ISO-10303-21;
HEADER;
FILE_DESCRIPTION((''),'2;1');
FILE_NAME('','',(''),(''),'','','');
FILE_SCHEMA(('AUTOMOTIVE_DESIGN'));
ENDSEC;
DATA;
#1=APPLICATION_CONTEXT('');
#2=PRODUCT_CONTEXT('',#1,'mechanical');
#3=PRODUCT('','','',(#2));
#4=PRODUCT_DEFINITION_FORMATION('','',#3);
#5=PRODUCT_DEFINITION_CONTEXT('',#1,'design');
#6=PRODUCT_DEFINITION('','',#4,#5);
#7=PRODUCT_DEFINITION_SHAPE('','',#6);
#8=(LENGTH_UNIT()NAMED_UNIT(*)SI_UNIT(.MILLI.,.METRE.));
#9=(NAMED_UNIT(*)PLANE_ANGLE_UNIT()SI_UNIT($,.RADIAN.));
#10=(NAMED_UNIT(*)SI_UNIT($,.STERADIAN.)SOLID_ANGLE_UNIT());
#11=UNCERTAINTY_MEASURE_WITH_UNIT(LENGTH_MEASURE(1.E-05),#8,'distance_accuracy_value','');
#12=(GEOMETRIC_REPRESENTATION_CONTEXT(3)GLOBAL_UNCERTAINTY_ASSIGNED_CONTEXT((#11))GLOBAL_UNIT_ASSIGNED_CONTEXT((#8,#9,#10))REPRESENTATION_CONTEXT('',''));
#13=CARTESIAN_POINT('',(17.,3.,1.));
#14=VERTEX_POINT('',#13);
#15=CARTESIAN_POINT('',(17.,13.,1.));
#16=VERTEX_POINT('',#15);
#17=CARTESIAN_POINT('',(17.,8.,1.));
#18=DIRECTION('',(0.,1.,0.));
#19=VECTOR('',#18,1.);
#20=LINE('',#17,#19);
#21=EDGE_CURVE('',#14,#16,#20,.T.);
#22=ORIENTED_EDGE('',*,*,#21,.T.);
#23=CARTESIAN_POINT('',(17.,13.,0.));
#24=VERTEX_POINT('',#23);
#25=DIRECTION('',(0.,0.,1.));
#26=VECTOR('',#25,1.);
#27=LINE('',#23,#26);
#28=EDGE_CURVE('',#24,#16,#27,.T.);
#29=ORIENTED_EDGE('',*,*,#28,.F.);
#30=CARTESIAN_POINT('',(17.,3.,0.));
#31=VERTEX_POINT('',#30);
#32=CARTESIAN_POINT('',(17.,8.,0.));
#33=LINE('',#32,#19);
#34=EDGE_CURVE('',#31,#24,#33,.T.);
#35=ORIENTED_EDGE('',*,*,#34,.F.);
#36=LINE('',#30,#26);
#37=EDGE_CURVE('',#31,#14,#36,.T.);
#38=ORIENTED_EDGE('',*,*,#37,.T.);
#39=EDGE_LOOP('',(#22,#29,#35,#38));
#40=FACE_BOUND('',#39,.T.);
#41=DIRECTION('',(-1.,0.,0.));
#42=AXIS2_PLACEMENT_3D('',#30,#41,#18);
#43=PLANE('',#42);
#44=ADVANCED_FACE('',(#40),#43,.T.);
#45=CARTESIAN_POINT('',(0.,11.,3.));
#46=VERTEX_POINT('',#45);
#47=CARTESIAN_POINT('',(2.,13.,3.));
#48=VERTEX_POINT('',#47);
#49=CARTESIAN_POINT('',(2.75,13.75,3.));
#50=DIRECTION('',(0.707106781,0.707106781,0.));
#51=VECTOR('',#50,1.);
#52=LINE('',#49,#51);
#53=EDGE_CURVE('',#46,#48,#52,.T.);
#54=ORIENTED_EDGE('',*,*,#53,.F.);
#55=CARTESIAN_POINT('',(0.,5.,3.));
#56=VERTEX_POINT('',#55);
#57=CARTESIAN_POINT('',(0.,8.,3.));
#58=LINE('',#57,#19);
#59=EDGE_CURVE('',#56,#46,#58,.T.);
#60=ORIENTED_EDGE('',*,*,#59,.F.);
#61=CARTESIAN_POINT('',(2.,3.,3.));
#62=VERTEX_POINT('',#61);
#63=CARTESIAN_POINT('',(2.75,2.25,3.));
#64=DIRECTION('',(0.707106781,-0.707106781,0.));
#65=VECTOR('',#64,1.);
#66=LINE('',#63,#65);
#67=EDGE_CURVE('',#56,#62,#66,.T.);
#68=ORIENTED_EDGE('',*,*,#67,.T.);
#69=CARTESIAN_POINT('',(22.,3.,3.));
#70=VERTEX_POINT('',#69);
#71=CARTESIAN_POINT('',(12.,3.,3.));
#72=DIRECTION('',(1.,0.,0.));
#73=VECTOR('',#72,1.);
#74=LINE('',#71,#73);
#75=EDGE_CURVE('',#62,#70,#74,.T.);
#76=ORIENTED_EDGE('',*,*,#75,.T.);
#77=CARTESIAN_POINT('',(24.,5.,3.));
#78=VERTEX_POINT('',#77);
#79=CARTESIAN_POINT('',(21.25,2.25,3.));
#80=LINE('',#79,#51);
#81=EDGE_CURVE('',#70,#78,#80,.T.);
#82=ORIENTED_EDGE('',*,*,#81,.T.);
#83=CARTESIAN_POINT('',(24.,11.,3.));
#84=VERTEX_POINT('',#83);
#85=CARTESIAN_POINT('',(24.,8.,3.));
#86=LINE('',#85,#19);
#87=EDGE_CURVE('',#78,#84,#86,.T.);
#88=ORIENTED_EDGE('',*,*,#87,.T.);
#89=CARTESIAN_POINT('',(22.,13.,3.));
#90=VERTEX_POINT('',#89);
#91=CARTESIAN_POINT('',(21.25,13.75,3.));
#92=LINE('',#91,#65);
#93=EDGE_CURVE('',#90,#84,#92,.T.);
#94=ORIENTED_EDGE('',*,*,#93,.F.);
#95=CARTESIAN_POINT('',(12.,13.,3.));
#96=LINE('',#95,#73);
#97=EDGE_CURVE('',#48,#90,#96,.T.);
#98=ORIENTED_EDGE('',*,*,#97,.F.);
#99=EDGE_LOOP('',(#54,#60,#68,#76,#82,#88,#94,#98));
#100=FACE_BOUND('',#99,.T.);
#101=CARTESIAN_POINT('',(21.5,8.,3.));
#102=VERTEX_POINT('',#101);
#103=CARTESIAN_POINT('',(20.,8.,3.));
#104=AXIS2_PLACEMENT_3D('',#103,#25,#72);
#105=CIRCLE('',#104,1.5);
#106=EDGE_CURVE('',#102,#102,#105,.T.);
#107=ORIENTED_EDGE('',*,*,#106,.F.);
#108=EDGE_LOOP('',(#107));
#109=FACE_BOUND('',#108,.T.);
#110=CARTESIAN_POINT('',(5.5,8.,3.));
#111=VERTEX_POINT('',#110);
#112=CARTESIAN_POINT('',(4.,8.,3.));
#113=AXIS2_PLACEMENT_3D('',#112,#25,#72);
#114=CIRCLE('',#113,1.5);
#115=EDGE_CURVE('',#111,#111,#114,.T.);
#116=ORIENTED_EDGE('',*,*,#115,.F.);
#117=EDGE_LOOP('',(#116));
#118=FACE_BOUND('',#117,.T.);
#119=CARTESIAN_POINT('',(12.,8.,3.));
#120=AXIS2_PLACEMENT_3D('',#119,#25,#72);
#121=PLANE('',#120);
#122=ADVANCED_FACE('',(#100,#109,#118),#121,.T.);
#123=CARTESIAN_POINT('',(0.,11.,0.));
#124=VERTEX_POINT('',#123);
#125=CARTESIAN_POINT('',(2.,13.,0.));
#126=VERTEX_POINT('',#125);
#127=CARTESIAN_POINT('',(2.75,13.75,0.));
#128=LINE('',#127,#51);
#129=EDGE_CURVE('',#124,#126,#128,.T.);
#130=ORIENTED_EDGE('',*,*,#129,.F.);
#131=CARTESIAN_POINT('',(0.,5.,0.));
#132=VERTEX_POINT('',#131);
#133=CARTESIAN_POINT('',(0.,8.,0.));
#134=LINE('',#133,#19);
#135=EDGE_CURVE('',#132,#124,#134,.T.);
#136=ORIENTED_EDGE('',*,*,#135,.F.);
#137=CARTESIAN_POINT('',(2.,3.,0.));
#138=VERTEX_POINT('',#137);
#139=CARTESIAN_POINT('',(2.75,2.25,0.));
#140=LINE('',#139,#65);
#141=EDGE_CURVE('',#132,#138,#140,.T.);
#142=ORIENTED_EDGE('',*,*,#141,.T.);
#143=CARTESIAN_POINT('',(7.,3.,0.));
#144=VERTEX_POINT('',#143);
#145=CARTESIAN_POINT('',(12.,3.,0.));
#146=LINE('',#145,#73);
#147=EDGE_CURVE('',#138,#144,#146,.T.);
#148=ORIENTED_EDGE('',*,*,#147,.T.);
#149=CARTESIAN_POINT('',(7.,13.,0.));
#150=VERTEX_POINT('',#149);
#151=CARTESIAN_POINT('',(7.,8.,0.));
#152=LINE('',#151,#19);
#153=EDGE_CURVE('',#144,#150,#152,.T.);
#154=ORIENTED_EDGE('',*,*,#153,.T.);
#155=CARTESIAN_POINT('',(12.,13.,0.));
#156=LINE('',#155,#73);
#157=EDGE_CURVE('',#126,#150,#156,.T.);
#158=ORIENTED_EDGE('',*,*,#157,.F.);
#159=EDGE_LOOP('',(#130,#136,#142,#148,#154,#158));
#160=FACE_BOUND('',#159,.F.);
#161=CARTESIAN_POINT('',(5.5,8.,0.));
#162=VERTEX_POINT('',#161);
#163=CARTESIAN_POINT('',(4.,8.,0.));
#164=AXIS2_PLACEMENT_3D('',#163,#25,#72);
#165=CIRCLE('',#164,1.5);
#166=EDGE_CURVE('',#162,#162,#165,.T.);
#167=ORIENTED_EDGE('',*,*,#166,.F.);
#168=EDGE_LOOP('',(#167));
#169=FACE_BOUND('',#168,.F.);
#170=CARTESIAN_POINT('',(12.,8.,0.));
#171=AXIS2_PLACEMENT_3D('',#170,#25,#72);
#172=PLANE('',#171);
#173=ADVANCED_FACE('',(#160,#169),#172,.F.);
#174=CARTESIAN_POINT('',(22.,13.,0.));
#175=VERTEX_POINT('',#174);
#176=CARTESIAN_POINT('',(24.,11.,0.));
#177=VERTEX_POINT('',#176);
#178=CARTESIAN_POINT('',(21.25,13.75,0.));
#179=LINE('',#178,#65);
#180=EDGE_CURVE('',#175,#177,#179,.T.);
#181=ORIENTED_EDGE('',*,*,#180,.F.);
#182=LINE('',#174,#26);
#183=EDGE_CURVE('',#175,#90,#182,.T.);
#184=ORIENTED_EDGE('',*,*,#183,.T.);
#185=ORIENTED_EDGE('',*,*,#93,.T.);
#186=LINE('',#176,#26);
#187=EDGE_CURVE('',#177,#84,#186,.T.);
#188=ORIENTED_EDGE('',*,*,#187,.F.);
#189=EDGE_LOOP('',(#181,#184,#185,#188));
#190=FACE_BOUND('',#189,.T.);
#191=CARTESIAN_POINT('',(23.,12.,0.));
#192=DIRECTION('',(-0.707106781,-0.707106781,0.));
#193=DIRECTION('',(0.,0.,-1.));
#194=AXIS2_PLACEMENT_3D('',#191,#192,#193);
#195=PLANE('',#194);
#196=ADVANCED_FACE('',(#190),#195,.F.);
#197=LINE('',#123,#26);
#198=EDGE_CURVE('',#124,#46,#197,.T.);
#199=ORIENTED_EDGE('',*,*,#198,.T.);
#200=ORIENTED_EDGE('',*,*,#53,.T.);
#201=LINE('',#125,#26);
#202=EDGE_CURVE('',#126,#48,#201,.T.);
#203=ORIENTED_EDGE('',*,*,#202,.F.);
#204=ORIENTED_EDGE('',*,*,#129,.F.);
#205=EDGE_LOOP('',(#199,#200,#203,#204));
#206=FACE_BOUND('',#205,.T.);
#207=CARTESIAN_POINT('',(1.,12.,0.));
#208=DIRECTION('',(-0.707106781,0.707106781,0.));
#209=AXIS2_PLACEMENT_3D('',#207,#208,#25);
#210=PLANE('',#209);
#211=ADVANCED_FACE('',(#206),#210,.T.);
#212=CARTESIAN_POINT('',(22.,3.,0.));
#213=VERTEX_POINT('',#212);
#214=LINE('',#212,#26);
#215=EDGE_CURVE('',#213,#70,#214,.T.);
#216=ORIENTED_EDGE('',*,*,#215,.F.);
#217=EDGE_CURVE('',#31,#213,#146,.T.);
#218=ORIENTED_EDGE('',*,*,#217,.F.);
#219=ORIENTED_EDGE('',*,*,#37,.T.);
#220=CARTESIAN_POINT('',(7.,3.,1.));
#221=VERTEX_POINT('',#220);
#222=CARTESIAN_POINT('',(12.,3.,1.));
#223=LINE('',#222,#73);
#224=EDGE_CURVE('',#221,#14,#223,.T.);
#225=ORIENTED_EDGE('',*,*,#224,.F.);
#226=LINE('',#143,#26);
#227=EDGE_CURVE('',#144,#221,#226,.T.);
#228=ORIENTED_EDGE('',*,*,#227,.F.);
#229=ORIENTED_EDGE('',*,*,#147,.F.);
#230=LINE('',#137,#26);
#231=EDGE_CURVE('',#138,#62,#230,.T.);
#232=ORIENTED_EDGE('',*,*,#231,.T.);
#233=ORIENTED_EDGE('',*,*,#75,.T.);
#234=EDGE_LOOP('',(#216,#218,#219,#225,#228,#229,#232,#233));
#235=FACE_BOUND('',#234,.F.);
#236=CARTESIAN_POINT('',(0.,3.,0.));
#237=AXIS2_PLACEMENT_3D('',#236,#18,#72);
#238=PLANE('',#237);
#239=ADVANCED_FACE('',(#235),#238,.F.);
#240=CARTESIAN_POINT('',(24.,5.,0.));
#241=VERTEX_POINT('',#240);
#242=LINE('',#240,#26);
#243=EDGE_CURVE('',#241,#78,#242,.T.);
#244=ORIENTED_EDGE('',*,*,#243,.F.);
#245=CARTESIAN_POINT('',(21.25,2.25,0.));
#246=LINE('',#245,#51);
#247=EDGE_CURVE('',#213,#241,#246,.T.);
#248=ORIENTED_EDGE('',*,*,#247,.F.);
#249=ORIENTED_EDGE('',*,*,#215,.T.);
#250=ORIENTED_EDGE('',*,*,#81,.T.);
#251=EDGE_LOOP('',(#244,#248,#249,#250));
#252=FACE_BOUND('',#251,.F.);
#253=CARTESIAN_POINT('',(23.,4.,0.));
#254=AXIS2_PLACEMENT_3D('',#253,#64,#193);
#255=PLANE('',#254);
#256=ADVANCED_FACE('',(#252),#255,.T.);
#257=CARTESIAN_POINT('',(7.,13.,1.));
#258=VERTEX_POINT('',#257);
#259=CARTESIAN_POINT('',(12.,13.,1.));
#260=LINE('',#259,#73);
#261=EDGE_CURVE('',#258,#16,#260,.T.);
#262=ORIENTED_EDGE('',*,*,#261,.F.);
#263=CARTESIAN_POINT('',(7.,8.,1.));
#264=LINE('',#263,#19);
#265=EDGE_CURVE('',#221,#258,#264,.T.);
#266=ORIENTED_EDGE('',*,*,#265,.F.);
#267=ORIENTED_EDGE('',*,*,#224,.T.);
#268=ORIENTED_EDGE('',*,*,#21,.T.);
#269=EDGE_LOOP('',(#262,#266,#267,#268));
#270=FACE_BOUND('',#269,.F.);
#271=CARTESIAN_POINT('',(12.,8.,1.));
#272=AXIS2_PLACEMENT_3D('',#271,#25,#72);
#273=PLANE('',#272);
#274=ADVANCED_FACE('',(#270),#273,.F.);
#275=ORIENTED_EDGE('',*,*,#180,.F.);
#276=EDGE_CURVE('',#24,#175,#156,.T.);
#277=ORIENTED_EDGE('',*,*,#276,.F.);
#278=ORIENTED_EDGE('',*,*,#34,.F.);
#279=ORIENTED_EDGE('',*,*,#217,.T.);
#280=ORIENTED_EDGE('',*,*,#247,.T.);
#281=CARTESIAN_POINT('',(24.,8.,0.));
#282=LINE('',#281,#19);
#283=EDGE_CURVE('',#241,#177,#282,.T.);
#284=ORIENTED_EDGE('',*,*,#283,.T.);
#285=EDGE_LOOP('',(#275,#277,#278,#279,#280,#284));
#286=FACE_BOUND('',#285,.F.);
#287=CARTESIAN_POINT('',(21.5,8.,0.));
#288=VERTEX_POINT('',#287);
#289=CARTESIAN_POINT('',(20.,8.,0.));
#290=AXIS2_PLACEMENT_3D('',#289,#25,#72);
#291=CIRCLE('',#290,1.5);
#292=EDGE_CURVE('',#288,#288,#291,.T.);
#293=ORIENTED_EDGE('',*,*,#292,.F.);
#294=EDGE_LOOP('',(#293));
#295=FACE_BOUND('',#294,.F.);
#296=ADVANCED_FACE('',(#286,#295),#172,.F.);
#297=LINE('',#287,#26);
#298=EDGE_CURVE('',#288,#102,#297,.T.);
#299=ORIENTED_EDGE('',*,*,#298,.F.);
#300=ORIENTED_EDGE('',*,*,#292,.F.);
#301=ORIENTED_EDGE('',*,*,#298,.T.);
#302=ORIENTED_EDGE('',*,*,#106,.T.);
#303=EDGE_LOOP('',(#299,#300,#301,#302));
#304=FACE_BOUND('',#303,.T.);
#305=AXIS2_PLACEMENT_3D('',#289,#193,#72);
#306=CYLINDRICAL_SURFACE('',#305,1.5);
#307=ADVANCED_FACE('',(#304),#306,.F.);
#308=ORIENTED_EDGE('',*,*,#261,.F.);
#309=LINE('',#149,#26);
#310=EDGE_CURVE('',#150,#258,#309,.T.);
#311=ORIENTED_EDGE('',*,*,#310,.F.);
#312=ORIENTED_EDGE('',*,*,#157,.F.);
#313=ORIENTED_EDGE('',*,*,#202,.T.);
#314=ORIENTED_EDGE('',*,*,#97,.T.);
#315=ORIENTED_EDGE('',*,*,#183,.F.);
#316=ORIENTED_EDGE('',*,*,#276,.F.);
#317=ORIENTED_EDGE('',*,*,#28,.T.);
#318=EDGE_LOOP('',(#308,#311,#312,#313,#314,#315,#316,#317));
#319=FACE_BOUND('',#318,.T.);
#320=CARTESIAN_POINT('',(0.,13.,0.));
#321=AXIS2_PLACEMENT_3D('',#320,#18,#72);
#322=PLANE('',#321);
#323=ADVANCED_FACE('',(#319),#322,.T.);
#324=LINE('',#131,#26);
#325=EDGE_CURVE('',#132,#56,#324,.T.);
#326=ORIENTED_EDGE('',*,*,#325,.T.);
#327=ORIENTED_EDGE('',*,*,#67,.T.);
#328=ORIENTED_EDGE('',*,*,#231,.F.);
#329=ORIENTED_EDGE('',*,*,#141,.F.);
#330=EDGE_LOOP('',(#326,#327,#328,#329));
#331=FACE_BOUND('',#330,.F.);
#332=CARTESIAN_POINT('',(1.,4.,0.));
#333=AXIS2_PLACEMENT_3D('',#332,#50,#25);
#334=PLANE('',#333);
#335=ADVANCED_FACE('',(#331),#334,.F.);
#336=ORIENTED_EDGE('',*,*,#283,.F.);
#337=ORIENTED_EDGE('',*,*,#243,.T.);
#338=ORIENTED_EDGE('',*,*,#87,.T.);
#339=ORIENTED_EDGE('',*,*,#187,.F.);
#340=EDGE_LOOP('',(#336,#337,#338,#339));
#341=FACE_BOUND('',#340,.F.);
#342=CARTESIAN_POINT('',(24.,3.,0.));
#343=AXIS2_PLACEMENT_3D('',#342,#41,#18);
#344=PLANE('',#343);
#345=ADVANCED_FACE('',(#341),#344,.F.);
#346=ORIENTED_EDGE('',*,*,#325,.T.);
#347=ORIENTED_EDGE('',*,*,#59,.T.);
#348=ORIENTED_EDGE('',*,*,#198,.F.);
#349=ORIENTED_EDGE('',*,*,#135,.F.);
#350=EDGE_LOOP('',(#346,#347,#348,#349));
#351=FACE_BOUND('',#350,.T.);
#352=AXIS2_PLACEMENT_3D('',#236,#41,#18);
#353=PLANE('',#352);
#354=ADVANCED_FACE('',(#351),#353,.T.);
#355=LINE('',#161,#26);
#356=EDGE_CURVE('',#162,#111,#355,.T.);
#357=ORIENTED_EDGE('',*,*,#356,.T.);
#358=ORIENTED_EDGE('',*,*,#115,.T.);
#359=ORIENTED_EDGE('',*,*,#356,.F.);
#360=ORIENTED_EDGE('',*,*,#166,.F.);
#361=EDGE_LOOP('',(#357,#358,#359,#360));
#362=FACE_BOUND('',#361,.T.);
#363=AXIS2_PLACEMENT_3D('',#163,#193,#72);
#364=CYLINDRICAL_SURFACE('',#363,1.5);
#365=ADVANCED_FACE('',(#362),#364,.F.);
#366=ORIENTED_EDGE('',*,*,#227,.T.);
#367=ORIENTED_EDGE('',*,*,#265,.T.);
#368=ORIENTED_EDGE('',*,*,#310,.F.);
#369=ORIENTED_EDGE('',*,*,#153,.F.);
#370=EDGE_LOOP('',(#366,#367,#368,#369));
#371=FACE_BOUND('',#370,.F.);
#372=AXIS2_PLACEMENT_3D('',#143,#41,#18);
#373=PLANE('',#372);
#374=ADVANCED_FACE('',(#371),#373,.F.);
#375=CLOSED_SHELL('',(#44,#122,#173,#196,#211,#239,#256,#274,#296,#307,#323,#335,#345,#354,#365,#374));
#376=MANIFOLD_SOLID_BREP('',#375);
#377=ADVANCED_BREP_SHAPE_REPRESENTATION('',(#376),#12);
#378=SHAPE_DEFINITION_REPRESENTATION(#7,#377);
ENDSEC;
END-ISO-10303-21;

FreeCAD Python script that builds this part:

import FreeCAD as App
import Part
import Sketcher
from FreeCAD import Vector


def edges_at(feature, points):
    """Names of the edges that pass closest to the given points."""
    edges = feature.Shape.Edges
    near = lambda p: min(range(len(edges)), key=lambda i: edges[i].distToShape(Part.Vertex(*p))[0])
    return sorted({f"Edge{near(p) + 1}" for p in points})


def add_polygon(sketch, points):
    """Adds a closed chain of lines whose ends are joined by coincident constraints."""
    first, n = sketch.GeometryCount, len(points)
    for a, b in zip(points, points[1:] + points[:1]):
        sketch.addGeometry(Part.LineSegment(App.Vector(*a, 0), App.Vector(*b, 0)), False)
    for i in range(n):
        sketch.addConstraint(Sketcher.Constraint("Coincident", first + i, 2, first + (i + 1) % n, 1))

doc = App.newDocument("Part")
params = doc.addObject("Spreadsheet::Sheet", "Params")
for row, (alias, value) in enumerate([
    ("sketch1_diameter", "3 mm"),
    ("pad1_length", "3 mm"),
    ("sketch2_diameter", "3 mm"),
    ("pad2_length", "3 mm"),
    ("sketch3_width", "10 mm"),
    ("pad3_length", "1 mm"),
    ("sketch4_width", "24 mm"),
    ("sketch4_height", "10 mm"),
    ("pad4_length", "3 mm"),
    ("chamfer_size", "2 mm"),
], start=1):
    params.set(f"A{row}", alias)
    params.set(f"B{row}", "=" + value)
    params.setAlias(f"B{row}", alias)

body = doc.addObject("PartDesign::Body", "Body")

# Sketch on XY plane
sketch1 = body.newObject("Sketcher::SketchObject", "Sketch")
sketch1.AttachmentSupport = (doc.getObject("XY_Plane"), [""])
sketch1.MapMode = "FlatFace"
sketch1.addGeometry(Part.Circle(Vector(4, 5, 0), Vector(0, 0, 1), 1.5), False)
sketch1.addConstraint([
    Sketcher.Constraint("Diameter", 0, 3.0),
    Sketcher.Constraint("DistanceX", -1, 1, 0, 3, 4.0),
    Sketcher.Constraint("DistanceY", -1, 1, 0, 3, 5.0),
])
sketch1.setExpression("Constraints[0]", "Params.sketch1_diameter")
pad1 = body.newObject("PartDesign::Pad", "Pad")
pad1.Profile = sketch1
pad1.setExpression("Length", "Params.pad1_length")
body2 = doc.addObject("PartDesign::Body", "Body001")
body2.AllowCompound = True

# Sketch on XY plane
sketch2 = body2.newObject("Sketcher::SketchObject", "Sketch001")
sketch2.AttachmentSupport = (doc.getObject("XY_Plane001"), [""])
sketch2.MapMode = "FlatFace"
sketch2.addGeometry(Part.Circle(Vector(20, 5, 0), Vector(0, 0, 1), 1.5), False)
sketch2.addConstraint([
    Sketcher.Constraint("Diameter", 0, 3.0),
    Sketcher.Constraint("DistanceX", -1, 1, 0, 3, 20.0),
    Sketcher.Constraint("DistanceY", -1, 1, 0, 3, 5.0),
])
sketch2.setExpression("Constraints[0]", "Params.sketch2_diameter")
pad2 = body2.newObject("PartDesign::Pad", "Pad001")
pad2.Profile = sketch2
pad2.setExpression("Length", "Params.pad2_length")
doc.recompute()

boolean = body2.newObject("PartDesign::Boolean", "Boolean")
boolean.Type = "Fuse"
boolean.addObjects([body])
body3 = doc.addObject("PartDesign::Body", "Body002")

# Sketch on XY plane
sketch3 = body3.newObject("Sketcher::SketchObject", "Sketch002")
sketch3.AttachmentSupport = (doc.getObject("XY_Plane002"), [""])
sketch3.MapMode = "FlatFace"
add_polygon(sketch3, [(7, 10), (7, 0), (17, 0), (17, 10)])  # lines 0-3
sketch3.addConstraint([
    Sketcher.Constraint("Vertical", 0),
    Sketcher.Constraint("Horizontal", 1),
    Sketcher.Constraint("Vertical", 2),
    Sketcher.Constraint("Horizontal", 3),
    Sketcher.Constraint("PointOnObject", 0, 2, -1),
    Sketcher.Constraint("Equal", 3, 0),
    Sketcher.Constraint("DistanceX", 1, 1, 1, 2, 10.0),
    Sketcher.Constraint("DistanceX", -1, 1, 0, 2, 7.0),
])
sketch3.setExpression("Constraints[10]", "Params.sketch3_width")
pad3 = body3.newObject("PartDesign::Pad", "Pad002")
pad3.Profile = sketch3
pad3.setExpression("Length", "Params.pad3_length")
body4 = doc.addObject("PartDesign::Body", "Body003")

# Sketch on XY plane
sketch4 = body4.newObject("Sketcher::SketchObject", "Sketch003")
sketch4.AttachmentSupport = (doc.getObject("XY_Plane003"), [""])
sketch4.MapMode = "FlatFace"
add_polygon(sketch4, [(0, 10), (0, 0), (24, 0), (24, 10)])  # lines 0-3
sketch4.addConstraint([
    Sketcher.Constraint("Vertical", 0),
    Sketcher.Constraint("Horizontal", 1),
    Sketcher.Constraint("Vertical", 2),
    Sketcher.Constraint("Horizontal", 3),
    Sketcher.Constraint("Coincident", 0, 2, -1, 1),
    Sketcher.Constraint("DistanceX", 1, 1, 1, 2, 24.0),
    Sketcher.Constraint("DistanceY", 0, 2, 0, 1, 10.0),
])
sketch4.setExpression("Constraints[9]", "Params.sketch4_width")
sketch4.setExpression("Constraints[10]", "Params.sketch4_height")
pad4 = body4.newObject("PartDesign::Pad", "Pad003")
pad4.Profile = sketch4
pad4.setExpression("Length", "Params.pad4_length")
doc.recompute()

boolean2 = body4.newObject("PartDesign::Boolean", "Boolean001")
boolean2.Type = "Cut"
boolean2.addObjects([body3])
doc.recompute()

boolean3 = body4.newObject("PartDesign::Boolean", "Boolean002")
boolean3.Type = "Cut"
boolean3.addObjects([body2])
body5 = doc.addObject("PartDesign::Body", "Body004")
doc.recompute()

body4.Placement = App.Placement(Vector(0, 3, 0), App.Rotation(Vector(0, 0, 1), 0))
boolean4 = body5.newObject("PartDesign::Boolean", "Boolean003")
boolean4.Type = "Fuse"
boolean4.addObjects([body4])
doc.recompute()

chamfer = body5.newObject("PartDesign::Chamfer", "Chamfer")
chamfer.Base = (boolean4, edges_at(boolean4, [
    (0, 3, 1.5),
    (0, 13, 1.5),
    (24, 3, 1.5),
    (24, 13, 1.5),
]))
chamfer.setExpression("Size", "Params.chamfer_size")

doc.recompute()
